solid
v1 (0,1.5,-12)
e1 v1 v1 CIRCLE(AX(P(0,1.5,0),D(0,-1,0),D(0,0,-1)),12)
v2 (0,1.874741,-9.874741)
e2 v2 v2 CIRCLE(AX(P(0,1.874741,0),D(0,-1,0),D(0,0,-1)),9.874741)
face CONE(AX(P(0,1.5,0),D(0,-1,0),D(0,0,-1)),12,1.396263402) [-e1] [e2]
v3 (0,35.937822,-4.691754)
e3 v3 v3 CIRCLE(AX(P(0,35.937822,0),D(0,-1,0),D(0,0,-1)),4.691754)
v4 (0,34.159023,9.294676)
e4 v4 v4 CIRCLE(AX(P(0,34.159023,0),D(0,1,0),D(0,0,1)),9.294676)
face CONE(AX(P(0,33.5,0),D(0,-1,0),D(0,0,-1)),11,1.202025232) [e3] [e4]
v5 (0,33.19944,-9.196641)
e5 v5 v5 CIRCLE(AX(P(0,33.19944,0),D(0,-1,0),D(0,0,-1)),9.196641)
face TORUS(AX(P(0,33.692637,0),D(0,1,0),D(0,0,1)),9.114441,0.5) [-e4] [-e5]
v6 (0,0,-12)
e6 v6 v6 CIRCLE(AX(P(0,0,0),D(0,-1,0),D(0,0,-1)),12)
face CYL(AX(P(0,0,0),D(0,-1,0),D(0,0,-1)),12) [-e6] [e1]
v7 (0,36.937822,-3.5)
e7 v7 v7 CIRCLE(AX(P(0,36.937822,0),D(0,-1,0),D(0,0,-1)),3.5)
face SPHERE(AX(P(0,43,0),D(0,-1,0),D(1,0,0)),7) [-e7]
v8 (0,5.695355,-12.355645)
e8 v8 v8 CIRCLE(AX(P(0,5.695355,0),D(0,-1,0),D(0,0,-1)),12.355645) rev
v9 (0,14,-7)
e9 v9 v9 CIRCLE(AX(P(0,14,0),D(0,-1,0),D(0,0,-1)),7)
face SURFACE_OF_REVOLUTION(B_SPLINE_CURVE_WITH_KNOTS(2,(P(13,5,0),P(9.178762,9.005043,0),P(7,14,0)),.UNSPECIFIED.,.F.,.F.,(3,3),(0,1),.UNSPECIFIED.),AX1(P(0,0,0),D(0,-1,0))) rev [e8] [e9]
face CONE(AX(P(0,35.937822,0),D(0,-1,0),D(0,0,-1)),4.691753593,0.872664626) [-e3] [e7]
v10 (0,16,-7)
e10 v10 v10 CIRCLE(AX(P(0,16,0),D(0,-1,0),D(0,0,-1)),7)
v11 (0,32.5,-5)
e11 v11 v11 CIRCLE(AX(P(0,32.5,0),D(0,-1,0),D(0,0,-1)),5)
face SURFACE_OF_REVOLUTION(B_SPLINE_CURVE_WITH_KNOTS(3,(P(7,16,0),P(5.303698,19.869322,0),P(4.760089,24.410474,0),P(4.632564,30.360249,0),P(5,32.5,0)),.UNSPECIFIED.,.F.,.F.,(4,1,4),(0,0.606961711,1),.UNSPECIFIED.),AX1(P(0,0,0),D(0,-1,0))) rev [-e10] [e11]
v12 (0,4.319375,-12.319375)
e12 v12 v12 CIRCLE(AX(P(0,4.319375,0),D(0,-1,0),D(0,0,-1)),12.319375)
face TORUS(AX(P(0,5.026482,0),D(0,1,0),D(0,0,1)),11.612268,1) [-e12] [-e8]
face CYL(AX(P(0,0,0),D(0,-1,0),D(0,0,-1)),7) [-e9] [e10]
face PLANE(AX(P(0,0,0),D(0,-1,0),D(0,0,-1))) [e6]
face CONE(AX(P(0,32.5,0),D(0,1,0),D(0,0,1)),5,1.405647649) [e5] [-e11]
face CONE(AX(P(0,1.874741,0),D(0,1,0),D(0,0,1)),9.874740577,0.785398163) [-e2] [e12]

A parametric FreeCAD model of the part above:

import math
import FreeCAD as App
import Part
import Sketcher

V = App.Vector
Q = App.Units.Quantity


def edges_at(feature, points):
    """Names of the edges that pass closest to the given points."""
    edges = feature.Shape.Edges
    near = lambda p: min(range(len(edges)), key=lambda i: edges[i].distToShape(Part.Vertex(*p))[0])
    return sorted({f"Edge{near(p) + 1}" for p in points})

doc = App.newDocument("Part")
body = doc.addObject("PartDesign::Body", "Body")

sketch1 = doc.addObject("Sketcher::SketchObject", "Sketch")
body.addObject(sketch1)
sketch1.AttachmentSupport = (doc.XY_Plane, [""])
sketch1.MapMode = "FlatFace"
sketch1.addGeometry([
    Part.LineSegment(V(0, 50, 0), V(0, 0, 0)),
    Part.LineSegment(V(0, 0, 0), V(12, 0, 0)),
    Part.LineSegment(V(12, 0, 0), V(12, 1.5, 0)),
    Part.LineSegment(V(12, 1.5, 0), V(9.874741, 1.874741, 0)),
    Part.LineSegment(V(9.874741, 1.874741, 0), V(13, 5, 0)),
    Part.BSplineCurve([V(7, 14, 0), V(9.178762, 9.005043, 0), V(13, 5, 0)], [3, 3], [0, 1], False, 2, [1, 1, 1], False),
    Part.LineSegment(V(7, 14, 0), V(7, 16, 0)),
    Part.BSplineCurve([V(5, 32.5, 0), V(4.632564, 30.360249, 0), V(4.760089, 24.410474, 0), V(5.303698, 19.869322, 0), V(7, 16, 0)], [4, 1, 4], [0, 0.393038289, 1], False, 3, [1, 1, 1, 1, 1], False),
    Part.LineSegment(V(5, 32.5, 0), V(11, 33.5, 0)),
    Part.LineSegment(V(11, 33.5, 0), V(4.691754, 35.937822, 0)),
    Part.LineSegment(V(4.691754, 35.937822, 0), V(3.5, 36.937822, 0)),
    Part.ArcOfCircle(Part.Circle(V(0, 43, 0), V(0, 0, 1), 7), math.radians(-60), math.radians(90)),
], False)
sketch1.addConstraint([
    Sketcher.Constraint("Block", 5),
    Sketcher.Constraint("Block", 7),
    Sketcher.Constraint("Coincident", 0, 2, 1, 1),
    Sketcher.Constraint("Coincident", 1, 2, 2, 1),
    Sketcher.Constraint("Coincident", 2, 2, 3, 1),
    Sketcher.Constraint("Coincident", 3, 2, 4, 1),
    Sketcher.Constraint("Coincident", 4, 2, 5, 2),
    Sketcher.Constraint("Coincident", 5, 1, 6, 1),
    Sketcher.Constraint("Coincident", 6, 2, 7, 2),
    Sketcher.Constraint("Coincident", 7, 1, 8, 1),
    Sketcher.Constraint("Coincident", 8, 2, 9, 1),
    Sketcher.Constraint("Coincident", 9, 2, 10, 1),
    Sketcher.Constraint("Coincident", 10, 2, 11, 1),
    Sketcher.Constraint("Coincident", 11, 2, 0, 1),
    Sketcher.Constraint("Vertical", 0),
    Sketcher.Constraint("Horizontal", 1),
    Sketcher.Constraint("Vertical", 2),
    Sketcher.Constraint("Coincident", 0, 2, -1, 1),
    Sketcher.Constraint("PointOnObject", 11, 3, -2),
    Sketcher.Constraint("Radius", 11, Q("7 mm")),
    Sketcher.Constraint("DistanceX", 1, 1, 1, 2, Q("12 mm")),
    Sketcher.Constraint("DistanceY", 0, 2, 0, 1, Q("50 mm")),
    Sketcher.Constraint("DistanceY", 2, 1, 2, 2, Q("1.5 mm")),
    Sketcher.Constraint("DistanceX", -1, 1, 8, 2, Q("11 mm")),
    Sketcher.Constraint("DistanceY", 2, 2, 8, 2, Q("32 mm")),
    Sketcher.Constraint("DistanceY", 9, 2, 10, 2, Q("1 mm")),
    Sketcher.Constraint("DistanceX", -1, 1, 10, 2, Q("3.5 mm")),
    Sketcher.Constraint("Distance", 9, Q("6.76291 mm")),
    Sketcher.Constraint("DistanceX", -1, 1, 3, 2, Q("9.874741 mm")),
    Sketcher.Constraint("DistanceY", -1, 1, 3, 2, Q("1.874741 mm")),
])
revolution = doc.addObject("PartDesign::Revolution", "Revolution")
body.addObject(revolution)
revolution.Profile = sketch1
revolution.ReferenceAxis = (sketch1, ["V_Axis"])
revolution.Angle = 360
doc.recompute()

fillet = doc.addObject("PartDesign::Fillet", "Fillet")
body.addObject(fillet)
fillet.Base = (revolution, edges_at(revolution, [(0, 5, 13)]))
fillet.Radius = 1
doc.recompute()

fillet2 = doc.addObject("PartDesign::Fillet", "Fillet001")
body.addObject(fillet2)
fillet2.Base = (fillet, edges_at(fillet, [(0, 33.5, 11)]))
fillet2.Radius = 0.5

doc.recompute()
